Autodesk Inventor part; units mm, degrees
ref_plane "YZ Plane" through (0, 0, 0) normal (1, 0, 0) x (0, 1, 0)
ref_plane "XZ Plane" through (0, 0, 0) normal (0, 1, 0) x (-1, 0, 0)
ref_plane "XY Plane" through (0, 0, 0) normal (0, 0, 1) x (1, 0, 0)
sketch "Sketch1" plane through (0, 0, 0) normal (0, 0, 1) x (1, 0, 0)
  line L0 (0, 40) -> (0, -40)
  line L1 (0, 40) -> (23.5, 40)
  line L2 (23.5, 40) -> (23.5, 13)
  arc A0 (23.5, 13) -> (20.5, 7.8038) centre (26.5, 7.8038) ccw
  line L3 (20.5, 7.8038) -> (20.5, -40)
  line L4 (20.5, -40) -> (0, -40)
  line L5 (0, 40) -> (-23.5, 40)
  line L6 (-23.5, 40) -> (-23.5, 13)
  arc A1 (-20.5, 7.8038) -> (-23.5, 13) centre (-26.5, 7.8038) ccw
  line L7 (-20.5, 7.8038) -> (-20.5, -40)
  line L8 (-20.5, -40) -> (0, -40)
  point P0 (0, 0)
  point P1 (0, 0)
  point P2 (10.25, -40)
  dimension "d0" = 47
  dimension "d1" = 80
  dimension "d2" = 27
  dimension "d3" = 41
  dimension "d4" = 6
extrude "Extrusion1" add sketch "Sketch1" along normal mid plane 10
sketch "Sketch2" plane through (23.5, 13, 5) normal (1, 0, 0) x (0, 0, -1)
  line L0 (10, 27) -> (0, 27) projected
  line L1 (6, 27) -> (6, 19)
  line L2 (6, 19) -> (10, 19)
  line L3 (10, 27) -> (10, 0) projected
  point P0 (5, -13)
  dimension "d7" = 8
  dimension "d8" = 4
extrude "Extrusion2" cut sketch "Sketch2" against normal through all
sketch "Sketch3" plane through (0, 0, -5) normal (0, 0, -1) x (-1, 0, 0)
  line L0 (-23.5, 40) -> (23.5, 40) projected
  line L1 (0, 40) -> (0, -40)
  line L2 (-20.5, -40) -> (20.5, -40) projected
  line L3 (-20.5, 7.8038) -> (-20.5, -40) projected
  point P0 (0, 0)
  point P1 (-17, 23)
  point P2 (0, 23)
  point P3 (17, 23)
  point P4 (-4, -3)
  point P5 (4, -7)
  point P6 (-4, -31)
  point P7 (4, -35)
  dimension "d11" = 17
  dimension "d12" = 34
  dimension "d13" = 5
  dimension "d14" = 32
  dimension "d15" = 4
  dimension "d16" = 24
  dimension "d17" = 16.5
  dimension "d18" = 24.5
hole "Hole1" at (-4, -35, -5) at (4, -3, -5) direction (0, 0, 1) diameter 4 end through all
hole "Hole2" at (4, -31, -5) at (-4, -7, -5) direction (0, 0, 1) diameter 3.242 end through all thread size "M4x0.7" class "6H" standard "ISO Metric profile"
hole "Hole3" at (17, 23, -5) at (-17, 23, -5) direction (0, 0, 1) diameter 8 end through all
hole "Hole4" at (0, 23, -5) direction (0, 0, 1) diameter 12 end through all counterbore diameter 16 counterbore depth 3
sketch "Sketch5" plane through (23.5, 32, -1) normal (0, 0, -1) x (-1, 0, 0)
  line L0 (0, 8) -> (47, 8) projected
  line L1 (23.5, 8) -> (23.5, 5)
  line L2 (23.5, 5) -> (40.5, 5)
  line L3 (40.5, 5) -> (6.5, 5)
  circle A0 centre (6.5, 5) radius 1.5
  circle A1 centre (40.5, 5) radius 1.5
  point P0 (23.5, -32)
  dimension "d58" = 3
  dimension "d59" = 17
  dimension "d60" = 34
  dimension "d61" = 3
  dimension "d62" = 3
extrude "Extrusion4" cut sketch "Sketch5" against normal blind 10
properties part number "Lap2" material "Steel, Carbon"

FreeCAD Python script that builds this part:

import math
import FreeCAD as App
import Part
import Sketcher

doc = App.newDocument("Part")
params = doc.addObject("Spreadsheet::Sheet", "Params")
for row, (alias, value) in enumerate([
    ("sketch1_radius", "6 mm"),
    ("sketch1_width", "47 mm"),
    ("sketch1_width2", "41 mm"),
    ("sketch1_height", "27 mm"),
    ("pad1_length", "10 mm"),
    ("sketch2_width", "8 mm"),
    ("sketch2_height", "4 mm"),
    ("sketch3_diameter", "4 mm"),
    ("hole_diameter", "4 mm"),
    ("hole2_diameter", "3.242 mm"),
    ("sketch5_diameter", "8 mm"),
    ("hole3_diameter", "8 mm"),
    ("sketch6_diameter", "12 mm"),
    ("hole4_diameter", "12 mm"),
    ("hole4_cbore_diameter", "16 mm"),
    ("hole4_cbore_depth", "3 mm"),
    ("sketch7_diameter", "3 mm"),
    ("pocket2_length", "10 mm"),
], start=1):
    params.set(f"A{row}", alias)
    params.set(f"B{row}", "=" + value)
    params.setAlias(f"B{row}", alias)

body = doc.addObject("PartDesign::Body", "Body")

sketch1 = body.newObject("Sketcher::SketchObject", "Sketch")
sketch1.AttachmentSupport = (doc.getObject("XY_Plane"), [""])
sketch1.MapMode = "FlatFace"
sketch1.addGeometry(Part.LineSegment(App.Vector(23.5, 40, 0), App.Vector(-23.5, 40, 0)), False)
sketch1.addGeometry(Part.LineSegment(App.Vector(-23.5, 40, 0), App.Vector(-23.5, 13, 0)), False)
sketch1.addGeometry(Part.ArcOfCircle(Part.Circle(App.Vector(-26.5, 7.8038, 0), App.Vector(0, 0, 1), 6), math.radians(0), math.radians(60.000227)), False)
sketch1.addGeometry(Part.LineSegment(App.Vector(-20.5, 7.8038, 0), App.Vector(-20.5, -40, 0)), False)
sketch1.addGeometry(Part.LineSegment(App.Vector(-20.5, -40, 0), App.Vector(20.5, -40, 0)), False)
sketch1.addGeometry(Part.LineSegment(App.Vector(20.5, -40, 0), App.Vector(20.5, 7.8038, 0)), False)
sketch1.addGeometry(Part.ArcOfCircle(Part.Circle(App.Vector(26.5, 7.8038, 0), App.Vector(0, 0, 1), 6.000041), math.radians(119.999773), math.radians(180)), False)
sketch1.addGeometry(Part.LineSegment(App.Vector(23.5, 13, 0), App.Vector(23.5, 40, 0)), False)
sketch1.addConstraint(Sketcher.Constraint("Coincident", 0, 2, 1, 1))
sketch1.addConstraint(Sketcher.Constraint("Coincident", 1, 2, 2, 2))
sketch1.addConstraint(Sketcher.Constraint("Tangent", 2, 1, 3, 1))
sketch1.addConstraint(Sketcher.Constraint("Coincident", 3, 2, 4, 1))
sketch1.addConstraint(Sketcher.Constraint("Coincident", 4, 2, 5, 1))
sketch1.addConstraint(Sketcher.Constraint("Tangent", 5, 2, 6, 2))
sketch1.addConstraint(Sketcher.Constraint("Coincident", 6, 1, 7, 1))
sketch1.addConstraint(Sketcher.Constraint("Coincident", 7, 2, 0, 1))
sketch1.addConstraint(Sketcher.Constraint("Horizontal", 0))
sketch1.addConstraint(Sketcher.Constraint("Vertical", 1))
sketch1.addConstraint(Sketcher.Constraint("Vertical", 3))
sketch1.addConstraint(Sketcher.Constraint("Horizontal", 4))
sketch1.addConstraint(Sketcher.Constraint("Vertical", 5))
sketch1.addConstraint(Sketcher.Constraint("Vertical", 7))
sketch1.addConstraint(Sketcher.Constraint("Equal", 2, 6))
sketch1.addConstraint(Sketcher.Constraint("Symmetric", 2, 3, 6, 3, -2))
sketch1.addConstraint(Sketcher.Constraint("Horizontal", 1, 2, 6, 1))
sketch1.addConstraint(Sketcher.Constraint("Radius", 2, 6.0))
sketch1.addConstraint(Sketcher.Constraint("DistanceX", 0, 2, 0, 1, 47.0))
sketch1.addConstraint(Sketcher.Constraint("DistanceX", 4, 1, 4, 2, 41.0))
sketch1.addConstraint(Sketcher.Constraint("DistanceY", 1, 2, 1, 1, 27.0))
sketch1.addConstraint(Sketcher.Constraint("DistanceY", 3, 2, 0, 2, 80.0))
sketch1.addConstraint(Sketcher.Constraint("DistanceY", -1, 1, 0, 2, 40.0))
sketch1.setExpression("Constraints[17]", "Params.sketch1_radius")
sketch1.setExpression("Constraints[18]", "Params.sketch1_width")
sketch1.setExpression("Constraints[19]", "Params.sketch1_width2")
sketch1.setExpression("Constraints[20]", "Params.sketch1_height")
pad1 = body.newObject("PartDesign::Pad", "Pad")
pad1.Profile = sketch1
pad1.setExpression("Length", "Params.pad1_length")
pad1.Midplane = True

sketch2 = body.newObject("Sketcher::SketchObject", "Sketch001")
sketch2.AttachmentSupport = (doc.getObject("YZ_Plane"), [""])
sketch2.MapMode = "FlatFace"
sketch2.AttachmentOffset = App.Placement(App.Vector(0, 0, 23.5), App.Rotation())
sketch2.addGeometry(Part.LineSegment(App.Vector(32, -5, 0), App.Vector(40, -5, 0)), False)
sketch2.addGeometry(Part.LineSegment(App.Vector(40, -5, 0), App.Vector(40, -1, 0)), False)
sketch2.addGeometry(Part.LineSegment(App.Vector(40, -1, 0), App.Vector(32, -1, 0)), False)
sketch2.addGeometry(Part.LineSegment(App.Vector(32, -1, 0), App.Vector(32, -5, 0)), False)
sketch2.addConstraint(Sketcher.Constraint("Coincident", 0, 2, 1, 1))
sketch2.addConstraint(Sketcher.Constraint("Coincident", 1, 2, 2, 1))
sketch2.addConstraint(Sketcher.Constraint("Coincident", 2, 2, 3, 1))
sketch2.addConstraint(Sketcher.Constraint("Coincident", 3, 2, 0, 1))
sketch2.addConstraint(Sketcher.Constraint("Horizontal", 0))
sketch2.addConstraint(Sketcher.Constraint("Vertical", 1))
sketch2.addConstraint(Sketcher.Constraint("Horizontal", 2))
sketch2.addConstraint(Sketcher.Constraint("Vertical", 3))
sketch2.addConstraint(Sketcher.Constraint("DistanceX", 0, 1, 0, 2, 8.0))
sketch2.addConstraint(Sketcher.Constraint("DistanceY", 1, 1, 1, 2, 4.0))
sketch2.addConstraint(Sketcher.Constraint("DistanceX", -1, 1, 0, 2, 40.0))
sketch2.addConstraint(Sketcher.Constraint("DistanceY", 0, 2, -1, 1, 5.0))
sketch2.setExpression("Constraints[8]", "Params.sketch2_width")
sketch2.setExpression("Constraints[9]", "Params.sketch2_height")
pocket1 = body.newObject("PartDesign::Pocket", "Pocket")
pocket1.Profile = sketch2
pocket1.Type = "ThroughAll"

sketch3 = body.newObject("Sketcher::SketchObject", "Sketch002")
sketch3.AttachmentSupport = (doc.getObject("XY_Plane"), [""])
sketch3.MapMode = "FlatFace"
sketch3.AttachmentOffset = App.Placement(App.Vector(0, 0, -5), App.Rotation())
sketch3.addGeometry(Part.Circle(App.Vector(-4, -35, 0), App.Vector(0, 0, 1), 2), False)
sketch3.addGeometry(Part.Circle(App.Vector(4, -3, 0), App.Vector(0, 0, 1), 2), False)
sketch3.addConstraint(Sketcher.Constraint("Equal", 0, 1))
sketch3.addConstraint(Sketcher.Constraint("Diameter", 0, 4.0))
sketch3.addConstraint(Sketcher.Constraint("DistanceX", 0, 3, -1, 1, 4.0))
sketch3.addConstraint(Sketcher.Constraint("DistanceY", 0, 3, -1, 1, 35.0))
sketch3.addConstraint(Sketcher.Constraint("DistanceX", -1, 1, 1, 3, 4.0))
sketch3.addConstraint(Sketcher.Constraint("DistanceY", 1, 3, -1, 1, 3.0))
sketch3.setExpression("Constraints[1]", "Params.sketch3_diameter")
doc.recompute()
hole = body.newObject("PartDesign::Hole", "Hole")
hole.Profile = sketch3
hole.ThreadType = "None"
hole.setExpression("Diameter", "Params.hole_diameter")
hole.DepthType = "ThroughAll"
hole.Reversed = True

sketch4 = body.newObject("Sketcher::SketchObject", "Sketch003")
sketch4.AttachmentSupport = (doc.getObject("XY_Plane"), [""])
sketch4.MapMode = "FlatFace"
sketch4.AttachmentOffset = App.Placement(App.Vector(0, 0, -5), App.Rotation())
sketch4.addGeometry(Part.Circle(App.Vector(4, -31, 0), App.Vector(0, 0, 1), 1.621), False)
sketch4.addGeometry(Part.Circle(App.Vector(-4, -7, 0), App.Vector(0, 0, 1), 1.621), False)
sketch4.addConstraint(Sketcher.Constraint("Equal", 0, 1))
sketch4.addConstraint(Sketcher.Constraint("Diameter", 0, 3.242))
sketch4.addConstraint(Sketcher.Constraint("DistanceX", -1, 1, 0, 3, 4.0))
sketch4.addConstraint(Sketcher.Constraint("DistanceY", 0, 3, -1, 1, 31.0))
sketch4.addConstraint(Sketcher.Constraint("DistanceX", 1, 3, -1, 1, 4.0))
sketch4.addConstraint(Sketcher.Constraint("DistanceY", 1, 3, -1, 1, 7.0))
doc.recompute()
hole2 = body.newObject("PartDesign::Hole", "Hole001")
hole2.Profile = sketch4
hole2.ThreadType = "None"
hole2.setExpression("Diameter", "Params.hole2_diameter")
hole2.DepthType = "ThroughAll"
hole2.Reversed = True

sketch5 = body.newObject("Sketcher::SketchObject", "Sketch004")
sketch5.AttachmentSupport = (doc.getObject("XY_Plane"), [""])
sketch5.MapMode = "FlatFace"
sketch5.AttachmentOffset = App.Placement(App.Vector(0, 0, -5), App.Rotation())
sketch5.addGeometry(Part.Circle(App.Vector(17, 23, 0), App.Vector(0, 0, 1), 4), False)
sketch5.addGeometry(Part.Circle(App.Vector(-17, 23, 0), App.Vector(0, 0, 1), 4), False)
sketch5.addConstraint(Sketcher.Constraint("Equal", 0, 1))
sketch5.addConstraint(Sketcher.Constraint("Symmetric", 0, 3, 1, 3, -2))
sketch5.addConstraint(Sketcher.Constraint("Diameter", 0, 8.0))
sketch5.addConstraint(Sketcher.Constraint("DistanceX", -1, 1, 0, 3, 17.0))
sketch5.addConstraint(Sketcher.Constraint("DistanceY", -1, 1, 0, 3, 23.0))
sketch5.setExpression("Constraints[2]", "Params.sketch5_diameter")
doc.recompute()
hole3 = body.newObject("PartDesign::Hole", "Hole002")
hole3.Profile = sketch5
hole3.ThreadType = "None"
hole3.setExpression("Diameter", "Params.hole3_diameter")
hole3.DepthType = "ThroughAll"
hole3.Reversed = True

sketch6 = body.newObject("Sketcher::SketchObject", "Sketch005")
sketch6.AttachmentSupport = (doc.getObject("XY_Plane"), [""])
sketch6.MapMode = "FlatFace"
sketch6.AttachmentOffset = App.Placement(App.Vector(0, 0, -5), App.Rotation())
sketch6.addGeometry(Part.Circle(App.Vector(0, 23, 0), App.Vector(0, 0, 1), 6), False)
sketch6.addConstraint(Sketcher.Constraint("PointOnObject", 0, 3, -2))
sketch6.addConstraint(Sketcher.Constraint("Diameter", 0, 12.0))
sketch6.addConstraint(Sketcher.Constraint("DistanceY", -1, 1, 0, 3, 23.0))
sketch6.setExpression("Constraints[1]", "Params.sketch6_diameter")
doc.recompute()
hole4 = body.newObject("PartDesign::Hole", "Hole003")
hole4.Profile = sketch6
hole4.ThreadType = "None"
hole4.setExpression("Diameter", "Params.hole4_diameter")
hole4.DepthType = "ThroughAll"
hole4.HoleCutType = "Counterbore"
hole4.setExpression("HoleCutDiameter", "Params.hole4_cbore_diameter")
hole4.setExpression("HoleCutDepth", "Params.hole4_cbore_depth")
hole4.Reversed = True

sketch7 = body.newObject("Sketcher::SketchObject", "Sketch006")
sketch7.AttachmentSupport = (doc.getObject("XY_Plane"), [""])
sketch7.MapMode = "FlatFace"
sketch7.AttachmentOffset = App.Placement(App.Vector(0, 0, -1), App.Rotation())
sketch7.addGeometry(Part.Circle(App.Vector(-17, 37, 0), App.Vector(0, 0, 1), 1.5), False)
sketch7.addGeometry(Part.Circle(App.Vector(17, 37, 0), App.Vector(0, 0, 1), 1.5), False)
sketch7.addConstraint(Sketcher.Constraint("Equal", 0, 1))
sketch7.addConstraint(Sketcher.Constraint("Symmetric", 0, 3, 1, 3, -2))
sketch7.addConstraint(Sketcher.Constraint("Diameter", 0, 3.0))
sketch7.addConstraint(Sketcher.Constraint("DistanceX", 0, 3, -1, 1, 17.0))
sketch7.addConstraint(Sketcher.Constraint("DistanceY", -1, 1, 0, 3, 37.0))
sketch7.setExpression("Constraints[2]", "Params.sketch7_diameter")
pocket2 = body.newObject("PartDesign::Pocket", "Pocket001")
pocket2.Profile = sketch7
pocket2.setExpression("Length", "Params.pocket2_length")
pocket2.Reversed = True

doc.recompute()
